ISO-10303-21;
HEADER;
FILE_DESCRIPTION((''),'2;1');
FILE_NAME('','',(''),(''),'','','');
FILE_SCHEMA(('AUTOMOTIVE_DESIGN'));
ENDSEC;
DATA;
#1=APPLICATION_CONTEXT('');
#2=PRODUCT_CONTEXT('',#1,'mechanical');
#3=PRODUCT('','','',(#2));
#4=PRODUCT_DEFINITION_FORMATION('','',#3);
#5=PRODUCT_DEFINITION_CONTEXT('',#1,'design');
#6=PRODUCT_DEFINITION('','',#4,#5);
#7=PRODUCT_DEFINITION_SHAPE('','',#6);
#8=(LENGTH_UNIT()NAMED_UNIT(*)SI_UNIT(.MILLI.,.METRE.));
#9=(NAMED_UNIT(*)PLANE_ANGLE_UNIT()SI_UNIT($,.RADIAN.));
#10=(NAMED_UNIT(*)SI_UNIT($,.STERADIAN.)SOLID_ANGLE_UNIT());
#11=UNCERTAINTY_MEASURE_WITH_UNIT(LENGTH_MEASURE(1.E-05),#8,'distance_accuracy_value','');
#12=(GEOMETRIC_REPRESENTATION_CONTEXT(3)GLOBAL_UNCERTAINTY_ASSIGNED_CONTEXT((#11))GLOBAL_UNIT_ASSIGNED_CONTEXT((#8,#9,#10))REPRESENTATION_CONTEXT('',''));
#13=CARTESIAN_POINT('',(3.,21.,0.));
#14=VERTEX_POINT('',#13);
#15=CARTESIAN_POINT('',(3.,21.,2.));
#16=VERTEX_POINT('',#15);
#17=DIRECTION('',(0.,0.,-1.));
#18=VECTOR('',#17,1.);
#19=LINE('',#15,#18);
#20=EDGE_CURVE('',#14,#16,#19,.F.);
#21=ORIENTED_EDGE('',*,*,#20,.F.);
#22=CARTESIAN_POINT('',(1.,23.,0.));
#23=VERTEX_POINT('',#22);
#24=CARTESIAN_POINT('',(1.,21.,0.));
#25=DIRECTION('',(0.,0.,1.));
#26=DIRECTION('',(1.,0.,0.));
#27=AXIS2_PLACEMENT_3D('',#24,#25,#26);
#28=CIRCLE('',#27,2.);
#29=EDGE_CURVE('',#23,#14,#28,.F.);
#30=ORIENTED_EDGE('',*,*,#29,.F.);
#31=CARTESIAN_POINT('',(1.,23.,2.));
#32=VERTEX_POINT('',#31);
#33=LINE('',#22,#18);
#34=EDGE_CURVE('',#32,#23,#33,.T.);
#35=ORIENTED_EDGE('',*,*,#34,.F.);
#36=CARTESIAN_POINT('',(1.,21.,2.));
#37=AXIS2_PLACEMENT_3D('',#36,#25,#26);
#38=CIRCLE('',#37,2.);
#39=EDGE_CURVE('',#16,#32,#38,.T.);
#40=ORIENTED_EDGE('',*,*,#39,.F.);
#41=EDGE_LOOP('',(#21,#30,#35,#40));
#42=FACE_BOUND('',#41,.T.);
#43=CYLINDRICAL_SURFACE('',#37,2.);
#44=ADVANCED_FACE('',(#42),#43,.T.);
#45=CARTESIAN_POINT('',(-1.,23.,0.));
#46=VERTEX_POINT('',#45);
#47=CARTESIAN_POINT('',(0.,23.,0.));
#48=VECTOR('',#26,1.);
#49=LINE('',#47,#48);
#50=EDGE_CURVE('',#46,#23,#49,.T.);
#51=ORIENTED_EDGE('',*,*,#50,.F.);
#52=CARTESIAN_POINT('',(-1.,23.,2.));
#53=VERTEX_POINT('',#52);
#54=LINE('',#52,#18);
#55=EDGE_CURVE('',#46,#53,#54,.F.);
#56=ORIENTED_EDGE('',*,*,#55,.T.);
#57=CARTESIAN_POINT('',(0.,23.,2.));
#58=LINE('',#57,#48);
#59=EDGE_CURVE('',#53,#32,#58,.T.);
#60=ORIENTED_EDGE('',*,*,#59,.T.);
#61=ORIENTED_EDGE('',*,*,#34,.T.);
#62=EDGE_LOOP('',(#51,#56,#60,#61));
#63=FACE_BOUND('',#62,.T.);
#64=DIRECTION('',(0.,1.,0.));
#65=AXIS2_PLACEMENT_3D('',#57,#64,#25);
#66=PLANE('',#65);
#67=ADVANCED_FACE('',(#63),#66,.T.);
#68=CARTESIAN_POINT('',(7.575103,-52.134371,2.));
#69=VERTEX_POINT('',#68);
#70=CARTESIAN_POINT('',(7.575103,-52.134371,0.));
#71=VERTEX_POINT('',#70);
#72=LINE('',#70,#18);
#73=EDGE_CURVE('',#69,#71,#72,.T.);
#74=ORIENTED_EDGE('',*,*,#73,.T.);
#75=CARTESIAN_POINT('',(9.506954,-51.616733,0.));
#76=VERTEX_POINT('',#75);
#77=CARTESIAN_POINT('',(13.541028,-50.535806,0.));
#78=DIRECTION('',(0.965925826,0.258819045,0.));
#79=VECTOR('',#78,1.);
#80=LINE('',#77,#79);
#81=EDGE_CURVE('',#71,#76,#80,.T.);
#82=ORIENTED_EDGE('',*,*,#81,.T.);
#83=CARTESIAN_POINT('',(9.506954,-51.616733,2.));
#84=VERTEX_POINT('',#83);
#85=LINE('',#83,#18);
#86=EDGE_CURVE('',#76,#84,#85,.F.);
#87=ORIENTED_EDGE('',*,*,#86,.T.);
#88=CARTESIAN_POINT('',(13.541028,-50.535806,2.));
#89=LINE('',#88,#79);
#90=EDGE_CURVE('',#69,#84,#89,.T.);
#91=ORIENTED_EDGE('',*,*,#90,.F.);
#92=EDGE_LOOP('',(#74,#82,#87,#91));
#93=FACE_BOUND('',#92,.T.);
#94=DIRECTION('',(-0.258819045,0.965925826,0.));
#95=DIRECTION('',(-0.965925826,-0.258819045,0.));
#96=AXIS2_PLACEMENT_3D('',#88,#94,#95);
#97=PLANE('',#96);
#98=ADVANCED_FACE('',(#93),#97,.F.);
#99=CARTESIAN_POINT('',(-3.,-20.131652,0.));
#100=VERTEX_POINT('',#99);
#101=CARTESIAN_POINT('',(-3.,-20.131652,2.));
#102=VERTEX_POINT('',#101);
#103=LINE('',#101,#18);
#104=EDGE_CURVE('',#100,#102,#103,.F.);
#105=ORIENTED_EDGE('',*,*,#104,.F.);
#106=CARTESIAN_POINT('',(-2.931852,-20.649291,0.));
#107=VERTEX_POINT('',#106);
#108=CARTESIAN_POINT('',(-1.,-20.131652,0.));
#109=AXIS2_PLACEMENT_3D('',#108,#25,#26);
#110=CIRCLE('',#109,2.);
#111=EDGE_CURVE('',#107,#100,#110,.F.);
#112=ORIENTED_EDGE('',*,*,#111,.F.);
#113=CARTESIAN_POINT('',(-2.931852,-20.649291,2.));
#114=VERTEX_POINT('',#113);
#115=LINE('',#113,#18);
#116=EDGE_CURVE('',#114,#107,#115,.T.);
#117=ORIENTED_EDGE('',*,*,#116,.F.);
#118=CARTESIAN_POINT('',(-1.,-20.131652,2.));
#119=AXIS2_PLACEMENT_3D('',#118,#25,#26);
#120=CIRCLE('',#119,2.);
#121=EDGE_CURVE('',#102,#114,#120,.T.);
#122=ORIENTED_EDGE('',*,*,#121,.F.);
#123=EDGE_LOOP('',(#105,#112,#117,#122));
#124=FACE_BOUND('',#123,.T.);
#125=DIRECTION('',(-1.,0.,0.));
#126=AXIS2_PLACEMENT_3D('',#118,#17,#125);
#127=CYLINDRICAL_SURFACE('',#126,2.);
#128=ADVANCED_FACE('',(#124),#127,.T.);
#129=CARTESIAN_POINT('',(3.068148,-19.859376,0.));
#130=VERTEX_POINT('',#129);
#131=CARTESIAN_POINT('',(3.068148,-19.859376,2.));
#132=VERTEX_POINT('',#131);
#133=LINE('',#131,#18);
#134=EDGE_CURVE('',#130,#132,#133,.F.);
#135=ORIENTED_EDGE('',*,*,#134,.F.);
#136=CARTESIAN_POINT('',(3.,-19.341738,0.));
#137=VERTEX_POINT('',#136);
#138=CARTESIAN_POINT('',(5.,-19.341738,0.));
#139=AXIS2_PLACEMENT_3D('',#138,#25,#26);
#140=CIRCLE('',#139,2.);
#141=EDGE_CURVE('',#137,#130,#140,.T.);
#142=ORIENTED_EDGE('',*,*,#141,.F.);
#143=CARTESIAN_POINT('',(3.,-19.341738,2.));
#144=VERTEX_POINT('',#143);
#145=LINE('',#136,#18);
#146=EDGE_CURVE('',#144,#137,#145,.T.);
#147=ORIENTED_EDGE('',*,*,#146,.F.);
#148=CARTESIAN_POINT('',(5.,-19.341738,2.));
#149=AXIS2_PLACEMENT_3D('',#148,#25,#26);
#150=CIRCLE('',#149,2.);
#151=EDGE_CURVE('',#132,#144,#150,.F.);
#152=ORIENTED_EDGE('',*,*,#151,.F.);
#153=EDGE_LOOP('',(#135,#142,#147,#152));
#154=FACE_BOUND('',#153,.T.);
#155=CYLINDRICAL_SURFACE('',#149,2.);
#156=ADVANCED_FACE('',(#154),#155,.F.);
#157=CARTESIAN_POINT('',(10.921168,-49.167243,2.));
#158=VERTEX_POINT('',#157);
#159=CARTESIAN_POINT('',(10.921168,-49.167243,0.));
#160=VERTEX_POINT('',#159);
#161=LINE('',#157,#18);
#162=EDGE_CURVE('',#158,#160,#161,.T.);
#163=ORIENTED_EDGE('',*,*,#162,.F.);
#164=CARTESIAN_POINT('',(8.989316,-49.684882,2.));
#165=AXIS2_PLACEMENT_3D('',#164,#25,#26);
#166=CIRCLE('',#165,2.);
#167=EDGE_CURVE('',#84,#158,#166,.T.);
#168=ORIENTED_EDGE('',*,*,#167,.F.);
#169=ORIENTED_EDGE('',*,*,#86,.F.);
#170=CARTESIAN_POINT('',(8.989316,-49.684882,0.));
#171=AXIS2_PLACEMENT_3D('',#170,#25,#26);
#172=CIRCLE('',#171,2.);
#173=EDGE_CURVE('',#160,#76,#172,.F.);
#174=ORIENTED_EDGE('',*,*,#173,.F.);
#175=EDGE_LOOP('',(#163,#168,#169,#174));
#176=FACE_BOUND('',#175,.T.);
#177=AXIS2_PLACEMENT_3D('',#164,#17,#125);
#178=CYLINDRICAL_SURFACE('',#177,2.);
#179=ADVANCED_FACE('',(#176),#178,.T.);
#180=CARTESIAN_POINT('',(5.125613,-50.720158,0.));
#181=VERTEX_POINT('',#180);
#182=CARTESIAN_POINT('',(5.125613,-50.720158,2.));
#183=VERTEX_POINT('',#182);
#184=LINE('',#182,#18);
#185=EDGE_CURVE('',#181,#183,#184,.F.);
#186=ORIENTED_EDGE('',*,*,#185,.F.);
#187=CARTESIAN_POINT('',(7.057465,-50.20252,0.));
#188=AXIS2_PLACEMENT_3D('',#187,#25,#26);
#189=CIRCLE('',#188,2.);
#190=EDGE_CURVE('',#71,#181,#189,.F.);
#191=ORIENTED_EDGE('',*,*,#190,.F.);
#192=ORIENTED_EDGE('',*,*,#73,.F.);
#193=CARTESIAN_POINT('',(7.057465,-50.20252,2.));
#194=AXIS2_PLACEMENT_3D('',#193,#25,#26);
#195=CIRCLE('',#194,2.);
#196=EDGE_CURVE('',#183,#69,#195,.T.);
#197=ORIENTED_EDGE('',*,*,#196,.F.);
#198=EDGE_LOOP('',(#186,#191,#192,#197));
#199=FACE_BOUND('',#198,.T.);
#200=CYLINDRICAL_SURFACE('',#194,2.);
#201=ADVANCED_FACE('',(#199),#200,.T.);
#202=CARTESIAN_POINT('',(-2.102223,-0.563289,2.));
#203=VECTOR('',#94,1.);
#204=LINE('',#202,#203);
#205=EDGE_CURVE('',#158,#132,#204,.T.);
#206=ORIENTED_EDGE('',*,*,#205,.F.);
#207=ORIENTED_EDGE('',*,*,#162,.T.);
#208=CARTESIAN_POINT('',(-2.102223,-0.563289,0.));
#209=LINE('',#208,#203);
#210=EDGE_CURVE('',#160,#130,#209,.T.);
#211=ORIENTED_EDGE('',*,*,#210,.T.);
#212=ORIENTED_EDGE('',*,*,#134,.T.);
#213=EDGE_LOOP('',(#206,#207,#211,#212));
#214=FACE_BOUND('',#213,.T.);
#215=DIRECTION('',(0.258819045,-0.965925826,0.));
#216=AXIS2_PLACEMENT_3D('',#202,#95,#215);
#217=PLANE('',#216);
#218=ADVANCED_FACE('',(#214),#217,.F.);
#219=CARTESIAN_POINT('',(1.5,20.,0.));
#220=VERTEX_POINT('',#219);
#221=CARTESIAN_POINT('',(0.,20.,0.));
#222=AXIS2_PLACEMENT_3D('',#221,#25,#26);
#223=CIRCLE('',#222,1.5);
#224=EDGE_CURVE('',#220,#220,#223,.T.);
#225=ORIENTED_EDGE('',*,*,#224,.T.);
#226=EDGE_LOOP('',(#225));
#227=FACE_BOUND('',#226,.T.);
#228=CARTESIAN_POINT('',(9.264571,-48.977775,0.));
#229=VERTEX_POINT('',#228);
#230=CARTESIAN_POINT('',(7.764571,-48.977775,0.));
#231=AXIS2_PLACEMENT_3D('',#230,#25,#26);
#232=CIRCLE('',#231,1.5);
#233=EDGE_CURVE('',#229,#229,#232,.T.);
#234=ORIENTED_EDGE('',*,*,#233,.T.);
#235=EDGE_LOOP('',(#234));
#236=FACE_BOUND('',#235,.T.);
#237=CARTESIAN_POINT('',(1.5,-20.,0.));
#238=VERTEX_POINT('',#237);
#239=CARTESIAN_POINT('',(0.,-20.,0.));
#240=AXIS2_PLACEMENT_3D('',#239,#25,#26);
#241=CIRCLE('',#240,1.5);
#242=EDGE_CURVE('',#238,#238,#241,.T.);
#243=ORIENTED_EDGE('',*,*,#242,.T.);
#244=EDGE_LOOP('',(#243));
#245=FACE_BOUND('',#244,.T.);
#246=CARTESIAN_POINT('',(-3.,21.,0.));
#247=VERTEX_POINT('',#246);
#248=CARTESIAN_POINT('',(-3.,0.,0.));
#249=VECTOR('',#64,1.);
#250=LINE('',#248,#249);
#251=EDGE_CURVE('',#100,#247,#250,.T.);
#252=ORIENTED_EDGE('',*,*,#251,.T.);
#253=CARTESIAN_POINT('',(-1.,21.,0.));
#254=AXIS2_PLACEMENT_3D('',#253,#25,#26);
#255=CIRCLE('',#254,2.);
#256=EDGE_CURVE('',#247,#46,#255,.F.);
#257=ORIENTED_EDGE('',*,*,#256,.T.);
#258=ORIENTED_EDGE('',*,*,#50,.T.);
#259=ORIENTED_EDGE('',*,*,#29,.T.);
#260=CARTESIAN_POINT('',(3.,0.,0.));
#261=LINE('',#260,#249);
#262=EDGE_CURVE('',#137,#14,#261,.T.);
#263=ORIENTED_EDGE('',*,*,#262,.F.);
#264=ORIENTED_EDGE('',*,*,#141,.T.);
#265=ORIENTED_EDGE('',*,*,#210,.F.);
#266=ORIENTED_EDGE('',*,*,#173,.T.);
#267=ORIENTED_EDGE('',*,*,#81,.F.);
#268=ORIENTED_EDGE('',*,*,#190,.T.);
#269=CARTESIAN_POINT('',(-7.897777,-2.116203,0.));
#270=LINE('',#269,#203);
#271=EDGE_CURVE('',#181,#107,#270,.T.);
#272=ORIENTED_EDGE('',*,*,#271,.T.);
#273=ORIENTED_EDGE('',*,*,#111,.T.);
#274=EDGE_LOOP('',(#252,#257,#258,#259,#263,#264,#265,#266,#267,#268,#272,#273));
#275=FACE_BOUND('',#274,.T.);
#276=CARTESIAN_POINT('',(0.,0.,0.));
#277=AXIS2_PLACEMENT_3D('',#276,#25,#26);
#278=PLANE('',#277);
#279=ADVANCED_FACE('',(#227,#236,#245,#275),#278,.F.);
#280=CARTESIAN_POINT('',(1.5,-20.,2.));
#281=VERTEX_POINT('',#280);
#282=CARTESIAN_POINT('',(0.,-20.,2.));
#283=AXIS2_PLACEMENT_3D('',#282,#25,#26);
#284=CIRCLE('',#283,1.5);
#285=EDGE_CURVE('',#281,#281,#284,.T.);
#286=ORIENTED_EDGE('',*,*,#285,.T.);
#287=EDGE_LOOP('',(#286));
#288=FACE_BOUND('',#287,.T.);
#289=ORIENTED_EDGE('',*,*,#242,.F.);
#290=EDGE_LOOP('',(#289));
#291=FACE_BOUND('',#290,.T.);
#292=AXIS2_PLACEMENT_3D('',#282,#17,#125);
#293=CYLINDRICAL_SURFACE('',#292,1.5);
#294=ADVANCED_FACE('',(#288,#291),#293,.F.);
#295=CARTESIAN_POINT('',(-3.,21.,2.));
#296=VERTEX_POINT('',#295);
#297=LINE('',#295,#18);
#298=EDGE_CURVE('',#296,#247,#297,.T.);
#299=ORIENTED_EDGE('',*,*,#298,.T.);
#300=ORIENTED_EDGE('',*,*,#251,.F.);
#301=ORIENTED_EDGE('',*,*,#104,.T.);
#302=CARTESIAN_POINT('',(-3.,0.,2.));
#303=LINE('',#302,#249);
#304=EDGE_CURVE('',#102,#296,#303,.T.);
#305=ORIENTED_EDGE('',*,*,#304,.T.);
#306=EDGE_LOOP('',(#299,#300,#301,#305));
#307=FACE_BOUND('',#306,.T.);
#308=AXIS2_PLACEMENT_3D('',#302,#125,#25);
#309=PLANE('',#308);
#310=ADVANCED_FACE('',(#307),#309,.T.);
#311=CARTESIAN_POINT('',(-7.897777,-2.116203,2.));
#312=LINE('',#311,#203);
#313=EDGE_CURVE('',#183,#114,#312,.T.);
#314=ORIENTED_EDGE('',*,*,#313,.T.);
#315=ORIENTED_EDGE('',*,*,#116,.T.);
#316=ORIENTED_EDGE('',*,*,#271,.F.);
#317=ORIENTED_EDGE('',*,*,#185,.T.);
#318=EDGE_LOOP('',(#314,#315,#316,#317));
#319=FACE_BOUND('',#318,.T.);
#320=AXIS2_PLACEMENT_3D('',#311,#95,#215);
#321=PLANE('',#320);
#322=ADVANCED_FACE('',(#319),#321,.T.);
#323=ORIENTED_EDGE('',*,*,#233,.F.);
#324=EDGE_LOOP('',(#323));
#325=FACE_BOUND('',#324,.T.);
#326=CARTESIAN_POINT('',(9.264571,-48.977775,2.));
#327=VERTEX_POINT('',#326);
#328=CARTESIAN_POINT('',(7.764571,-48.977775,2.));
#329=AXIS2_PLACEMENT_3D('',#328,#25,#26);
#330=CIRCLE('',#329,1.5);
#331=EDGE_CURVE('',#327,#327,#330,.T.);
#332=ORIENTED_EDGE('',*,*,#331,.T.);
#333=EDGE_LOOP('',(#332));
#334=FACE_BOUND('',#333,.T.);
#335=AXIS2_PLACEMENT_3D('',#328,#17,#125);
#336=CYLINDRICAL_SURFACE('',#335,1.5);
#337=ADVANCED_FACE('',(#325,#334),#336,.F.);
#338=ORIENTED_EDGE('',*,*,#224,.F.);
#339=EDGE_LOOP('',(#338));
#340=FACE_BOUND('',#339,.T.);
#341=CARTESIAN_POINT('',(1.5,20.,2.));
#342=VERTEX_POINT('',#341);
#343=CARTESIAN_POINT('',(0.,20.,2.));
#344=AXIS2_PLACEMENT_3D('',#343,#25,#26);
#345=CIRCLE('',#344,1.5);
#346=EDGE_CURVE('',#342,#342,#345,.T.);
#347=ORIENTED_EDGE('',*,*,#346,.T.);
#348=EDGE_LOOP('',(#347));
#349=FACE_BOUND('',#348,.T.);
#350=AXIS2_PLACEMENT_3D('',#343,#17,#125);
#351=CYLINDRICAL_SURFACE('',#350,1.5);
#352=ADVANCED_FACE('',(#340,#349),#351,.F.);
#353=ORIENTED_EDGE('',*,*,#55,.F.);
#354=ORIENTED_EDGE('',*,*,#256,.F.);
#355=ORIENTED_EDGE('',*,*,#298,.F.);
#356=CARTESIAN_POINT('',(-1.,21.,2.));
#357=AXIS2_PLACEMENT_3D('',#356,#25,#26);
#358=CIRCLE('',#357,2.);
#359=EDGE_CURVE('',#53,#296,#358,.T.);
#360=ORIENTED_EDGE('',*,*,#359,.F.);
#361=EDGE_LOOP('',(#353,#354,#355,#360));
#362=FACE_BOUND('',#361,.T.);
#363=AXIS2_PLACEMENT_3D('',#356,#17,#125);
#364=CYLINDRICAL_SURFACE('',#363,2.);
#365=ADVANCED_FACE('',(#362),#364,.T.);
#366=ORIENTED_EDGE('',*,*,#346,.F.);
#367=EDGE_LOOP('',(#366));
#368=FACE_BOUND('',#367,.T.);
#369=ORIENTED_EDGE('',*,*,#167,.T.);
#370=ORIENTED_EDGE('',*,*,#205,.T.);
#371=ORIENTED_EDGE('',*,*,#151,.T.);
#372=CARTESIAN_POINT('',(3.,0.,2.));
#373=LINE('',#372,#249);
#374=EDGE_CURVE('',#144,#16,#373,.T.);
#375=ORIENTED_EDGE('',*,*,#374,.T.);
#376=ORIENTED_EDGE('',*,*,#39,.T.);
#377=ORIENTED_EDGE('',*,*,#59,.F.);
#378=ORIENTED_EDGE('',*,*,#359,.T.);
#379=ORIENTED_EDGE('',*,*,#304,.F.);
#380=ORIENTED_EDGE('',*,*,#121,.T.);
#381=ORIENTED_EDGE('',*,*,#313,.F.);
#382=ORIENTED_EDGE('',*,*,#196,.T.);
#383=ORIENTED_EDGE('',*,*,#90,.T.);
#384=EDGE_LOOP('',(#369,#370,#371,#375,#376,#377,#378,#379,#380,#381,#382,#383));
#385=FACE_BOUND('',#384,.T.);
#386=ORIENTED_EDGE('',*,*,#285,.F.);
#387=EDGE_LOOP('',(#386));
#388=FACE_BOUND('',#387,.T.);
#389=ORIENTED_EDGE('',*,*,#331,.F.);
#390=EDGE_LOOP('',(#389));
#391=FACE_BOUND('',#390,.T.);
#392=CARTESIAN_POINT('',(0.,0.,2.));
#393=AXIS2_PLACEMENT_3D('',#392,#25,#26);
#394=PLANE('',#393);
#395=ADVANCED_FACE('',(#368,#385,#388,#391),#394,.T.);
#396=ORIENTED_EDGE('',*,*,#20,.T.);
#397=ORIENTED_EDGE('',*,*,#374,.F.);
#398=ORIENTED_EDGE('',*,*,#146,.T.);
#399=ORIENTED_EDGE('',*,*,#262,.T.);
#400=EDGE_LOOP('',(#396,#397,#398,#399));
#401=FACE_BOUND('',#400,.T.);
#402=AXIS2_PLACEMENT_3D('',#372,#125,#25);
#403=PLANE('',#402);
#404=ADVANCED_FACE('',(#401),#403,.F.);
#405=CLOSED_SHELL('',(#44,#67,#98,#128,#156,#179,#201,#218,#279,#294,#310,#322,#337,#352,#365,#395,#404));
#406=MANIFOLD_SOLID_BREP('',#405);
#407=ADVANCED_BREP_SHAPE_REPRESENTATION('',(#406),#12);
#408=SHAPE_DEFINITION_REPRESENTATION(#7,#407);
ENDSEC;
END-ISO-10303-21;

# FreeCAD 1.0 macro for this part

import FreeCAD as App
import Part
import Sketcher
Q = App.Units.Quantity


def edges_at(feature, points):
    """Names of the edges that pass closest to the given points."""
    edges = feature.Shape.Edges
    near = lambda p: min(range(len(edges)), key=lambda i: edges[i].distToShape(Part.Vertex(*p))[0])
    return sorted({f"Edge{near(p) + 1}" for p in points})


def add_polygon(sketch, points):
    """Adds a closed chain of lines whose ends are joined by coincident constraints."""
    first, n = sketch.GeometryCount, len(points)
    for a, b in zip(points, points[1:] + points[:1]):
        sketch.addGeometry(Part.LineSegment(App.Vector(*a, 0), App.Vector(*b, 0)), False)
    for i in range(n):
        sketch.addConstraint(Sketcher.Constraint("Coincident", first + i, 2, first + (i + 1) % n, 1))

doc = App.newDocument("Part")
params = doc.addObject("Spreadsheet::Sheet", "Params")
for row, (alias, value) in enumerate([
    ("sketch1_diameter", "3 mm"),
    ("sketch1_width", "6 mm"),
    ("sketch1_length", "6 mm"),
    ("pad1_length", "2 mm"),
    ("fillet_radius", "2 mm"),
], start=1):
    params.set(f"A{row}", alias)
    params.set(f"B{row}", "=" + value)
    params.setAlias(f"B{row}", alias)

body = doc.addObject("PartDesign::Body", "Body")

# Sketch on XY plane
sketch1 = doc.addObject("Sketcher::SketchObject", "Sketch")
body.addObject(sketch1)
sketch1.AttachmentSupport = (doc.XY_Plane, [""])
sketch1.MapMode = "FlatFace"
add_polygon(sketch1, [(-3, 23), (-3, -20.4), (5.6, -52.7), (11.4, -51.1), (3, -19.6), (3, 23)])  # lines 0-5
sketch1.addGeometry(Part.Circle(App.Vector(0, -20, 0), App.Vector(0, 0, 1), 1.5), False)  # 6
sketch1.addGeometry(Part.Circle(App.Vector(7.8, -49, 0), App.Vector(0, 0, 1), 1.5), False)  # 7
sketch1.addGeometry(Part.Circle(App.Vector(0, 20, 0), App.Vector(0, 0, 1), 1.5), False)  # 8
sketch1.addConstraint(Sketcher.Constraint("Vertical", 0))
sketch1.addConstraint(Sketcher.Constraint("Vertical", 4))
sketch1.addConstraint(Sketcher.Constraint("Horizontal", 5))
sketch1.addConstraint(Sketcher.Constraint("Equal", 6, 7))
sketch1.addConstraint(Sketcher.Constraint("Equal", 7, 8))
sketch1.addConstraint(Sketcher.Constraint("Symmetric", 6, 3, 8, 3, -1, 1))
sketch1.addConstraint(Sketcher.Constraint("PointOnObject", 6, 3, -2))
sketch1.addConstraint(Sketcher.Constraint("Perpendicular", 1, 2))
sketch1.addConstraint(Sketcher.Constraint("Perpendicular", 2, 3))
sketch1.addConstraint(Sketcher.Constraint("Diameter", 6, Q("3 mm")))
sketch1.addConstraint(Sketcher.Constraint("DistanceX", 5, 2, 5, 1, Q("6 mm")))
sketch1.addConstraint(Sketcher.Constraint("Angle", 1, Q("-75 deg")))
sketch1.addConstraint(Sketcher.Constraint("Distance", 2, Q("6 mm")))
sketch1.addConstraint(Sketcher.Constraint("DistanceY", 6, 3, -1, 1, Q("20 mm")))
sketch1.addConstraint(Sketcher.Constraint("DistanceX", 0, 2, -1, 1, Q("3 mm")))
sketch1.addConstraint(Sketcher.Constraint("DistanceY", -1, 1, 4, 2, Q("23 mm")))
sketch1.addConstraint(Sketcher.Constraint("DistanceY", 0, 2, 0, 1, Q("43.394957 mm")))
sketch1.addConstraint(Sketcher.Constraint("DistanceX", -1, 1, 7, 3, Q("7.764571 mm")))
sketch1.addConstraint(Sketcher.Constraint("DistanceX", -1, 1, 1, 2, Q("5.643251 mm")))
sketch1.addConstraint(Sketcher.Constraint("DistanceY", 2, 2, 7, 3, Q("2.12132 mm")))
sketch1.setExpression("Constraints[15]", "Params.sketch1_diameter")
sketch1.setExpression("Constraints[16]", "Params.sketch1_width")
sketch1.setExpression("Constraints[18]", "Params.sketch1_length")
pad1 = doc.addObject("PartDesign::Pad", "Pad")
body.addObject(pad1)
pad1.Profile = sketch1
pad1.setExpression("Length", "Params.pad1_length")
doc.recompute()

fillet = doc.addObject("PartDesign::Fillet", "Fillet")
body.addObject(fillet)
fillet.Base = (pad1, edges_at(pad1, [
    (-3, -20.395, 1),
    (-3, 23, 1),
    (3, 23, 1),
    (3, -19.605, 1),
    (11.439, -51.099, 1),
    (5.643, -52.652, 1),
]))
fillet.setExpression("Radius", "Params.fillet_radius")

doc.recompute()
